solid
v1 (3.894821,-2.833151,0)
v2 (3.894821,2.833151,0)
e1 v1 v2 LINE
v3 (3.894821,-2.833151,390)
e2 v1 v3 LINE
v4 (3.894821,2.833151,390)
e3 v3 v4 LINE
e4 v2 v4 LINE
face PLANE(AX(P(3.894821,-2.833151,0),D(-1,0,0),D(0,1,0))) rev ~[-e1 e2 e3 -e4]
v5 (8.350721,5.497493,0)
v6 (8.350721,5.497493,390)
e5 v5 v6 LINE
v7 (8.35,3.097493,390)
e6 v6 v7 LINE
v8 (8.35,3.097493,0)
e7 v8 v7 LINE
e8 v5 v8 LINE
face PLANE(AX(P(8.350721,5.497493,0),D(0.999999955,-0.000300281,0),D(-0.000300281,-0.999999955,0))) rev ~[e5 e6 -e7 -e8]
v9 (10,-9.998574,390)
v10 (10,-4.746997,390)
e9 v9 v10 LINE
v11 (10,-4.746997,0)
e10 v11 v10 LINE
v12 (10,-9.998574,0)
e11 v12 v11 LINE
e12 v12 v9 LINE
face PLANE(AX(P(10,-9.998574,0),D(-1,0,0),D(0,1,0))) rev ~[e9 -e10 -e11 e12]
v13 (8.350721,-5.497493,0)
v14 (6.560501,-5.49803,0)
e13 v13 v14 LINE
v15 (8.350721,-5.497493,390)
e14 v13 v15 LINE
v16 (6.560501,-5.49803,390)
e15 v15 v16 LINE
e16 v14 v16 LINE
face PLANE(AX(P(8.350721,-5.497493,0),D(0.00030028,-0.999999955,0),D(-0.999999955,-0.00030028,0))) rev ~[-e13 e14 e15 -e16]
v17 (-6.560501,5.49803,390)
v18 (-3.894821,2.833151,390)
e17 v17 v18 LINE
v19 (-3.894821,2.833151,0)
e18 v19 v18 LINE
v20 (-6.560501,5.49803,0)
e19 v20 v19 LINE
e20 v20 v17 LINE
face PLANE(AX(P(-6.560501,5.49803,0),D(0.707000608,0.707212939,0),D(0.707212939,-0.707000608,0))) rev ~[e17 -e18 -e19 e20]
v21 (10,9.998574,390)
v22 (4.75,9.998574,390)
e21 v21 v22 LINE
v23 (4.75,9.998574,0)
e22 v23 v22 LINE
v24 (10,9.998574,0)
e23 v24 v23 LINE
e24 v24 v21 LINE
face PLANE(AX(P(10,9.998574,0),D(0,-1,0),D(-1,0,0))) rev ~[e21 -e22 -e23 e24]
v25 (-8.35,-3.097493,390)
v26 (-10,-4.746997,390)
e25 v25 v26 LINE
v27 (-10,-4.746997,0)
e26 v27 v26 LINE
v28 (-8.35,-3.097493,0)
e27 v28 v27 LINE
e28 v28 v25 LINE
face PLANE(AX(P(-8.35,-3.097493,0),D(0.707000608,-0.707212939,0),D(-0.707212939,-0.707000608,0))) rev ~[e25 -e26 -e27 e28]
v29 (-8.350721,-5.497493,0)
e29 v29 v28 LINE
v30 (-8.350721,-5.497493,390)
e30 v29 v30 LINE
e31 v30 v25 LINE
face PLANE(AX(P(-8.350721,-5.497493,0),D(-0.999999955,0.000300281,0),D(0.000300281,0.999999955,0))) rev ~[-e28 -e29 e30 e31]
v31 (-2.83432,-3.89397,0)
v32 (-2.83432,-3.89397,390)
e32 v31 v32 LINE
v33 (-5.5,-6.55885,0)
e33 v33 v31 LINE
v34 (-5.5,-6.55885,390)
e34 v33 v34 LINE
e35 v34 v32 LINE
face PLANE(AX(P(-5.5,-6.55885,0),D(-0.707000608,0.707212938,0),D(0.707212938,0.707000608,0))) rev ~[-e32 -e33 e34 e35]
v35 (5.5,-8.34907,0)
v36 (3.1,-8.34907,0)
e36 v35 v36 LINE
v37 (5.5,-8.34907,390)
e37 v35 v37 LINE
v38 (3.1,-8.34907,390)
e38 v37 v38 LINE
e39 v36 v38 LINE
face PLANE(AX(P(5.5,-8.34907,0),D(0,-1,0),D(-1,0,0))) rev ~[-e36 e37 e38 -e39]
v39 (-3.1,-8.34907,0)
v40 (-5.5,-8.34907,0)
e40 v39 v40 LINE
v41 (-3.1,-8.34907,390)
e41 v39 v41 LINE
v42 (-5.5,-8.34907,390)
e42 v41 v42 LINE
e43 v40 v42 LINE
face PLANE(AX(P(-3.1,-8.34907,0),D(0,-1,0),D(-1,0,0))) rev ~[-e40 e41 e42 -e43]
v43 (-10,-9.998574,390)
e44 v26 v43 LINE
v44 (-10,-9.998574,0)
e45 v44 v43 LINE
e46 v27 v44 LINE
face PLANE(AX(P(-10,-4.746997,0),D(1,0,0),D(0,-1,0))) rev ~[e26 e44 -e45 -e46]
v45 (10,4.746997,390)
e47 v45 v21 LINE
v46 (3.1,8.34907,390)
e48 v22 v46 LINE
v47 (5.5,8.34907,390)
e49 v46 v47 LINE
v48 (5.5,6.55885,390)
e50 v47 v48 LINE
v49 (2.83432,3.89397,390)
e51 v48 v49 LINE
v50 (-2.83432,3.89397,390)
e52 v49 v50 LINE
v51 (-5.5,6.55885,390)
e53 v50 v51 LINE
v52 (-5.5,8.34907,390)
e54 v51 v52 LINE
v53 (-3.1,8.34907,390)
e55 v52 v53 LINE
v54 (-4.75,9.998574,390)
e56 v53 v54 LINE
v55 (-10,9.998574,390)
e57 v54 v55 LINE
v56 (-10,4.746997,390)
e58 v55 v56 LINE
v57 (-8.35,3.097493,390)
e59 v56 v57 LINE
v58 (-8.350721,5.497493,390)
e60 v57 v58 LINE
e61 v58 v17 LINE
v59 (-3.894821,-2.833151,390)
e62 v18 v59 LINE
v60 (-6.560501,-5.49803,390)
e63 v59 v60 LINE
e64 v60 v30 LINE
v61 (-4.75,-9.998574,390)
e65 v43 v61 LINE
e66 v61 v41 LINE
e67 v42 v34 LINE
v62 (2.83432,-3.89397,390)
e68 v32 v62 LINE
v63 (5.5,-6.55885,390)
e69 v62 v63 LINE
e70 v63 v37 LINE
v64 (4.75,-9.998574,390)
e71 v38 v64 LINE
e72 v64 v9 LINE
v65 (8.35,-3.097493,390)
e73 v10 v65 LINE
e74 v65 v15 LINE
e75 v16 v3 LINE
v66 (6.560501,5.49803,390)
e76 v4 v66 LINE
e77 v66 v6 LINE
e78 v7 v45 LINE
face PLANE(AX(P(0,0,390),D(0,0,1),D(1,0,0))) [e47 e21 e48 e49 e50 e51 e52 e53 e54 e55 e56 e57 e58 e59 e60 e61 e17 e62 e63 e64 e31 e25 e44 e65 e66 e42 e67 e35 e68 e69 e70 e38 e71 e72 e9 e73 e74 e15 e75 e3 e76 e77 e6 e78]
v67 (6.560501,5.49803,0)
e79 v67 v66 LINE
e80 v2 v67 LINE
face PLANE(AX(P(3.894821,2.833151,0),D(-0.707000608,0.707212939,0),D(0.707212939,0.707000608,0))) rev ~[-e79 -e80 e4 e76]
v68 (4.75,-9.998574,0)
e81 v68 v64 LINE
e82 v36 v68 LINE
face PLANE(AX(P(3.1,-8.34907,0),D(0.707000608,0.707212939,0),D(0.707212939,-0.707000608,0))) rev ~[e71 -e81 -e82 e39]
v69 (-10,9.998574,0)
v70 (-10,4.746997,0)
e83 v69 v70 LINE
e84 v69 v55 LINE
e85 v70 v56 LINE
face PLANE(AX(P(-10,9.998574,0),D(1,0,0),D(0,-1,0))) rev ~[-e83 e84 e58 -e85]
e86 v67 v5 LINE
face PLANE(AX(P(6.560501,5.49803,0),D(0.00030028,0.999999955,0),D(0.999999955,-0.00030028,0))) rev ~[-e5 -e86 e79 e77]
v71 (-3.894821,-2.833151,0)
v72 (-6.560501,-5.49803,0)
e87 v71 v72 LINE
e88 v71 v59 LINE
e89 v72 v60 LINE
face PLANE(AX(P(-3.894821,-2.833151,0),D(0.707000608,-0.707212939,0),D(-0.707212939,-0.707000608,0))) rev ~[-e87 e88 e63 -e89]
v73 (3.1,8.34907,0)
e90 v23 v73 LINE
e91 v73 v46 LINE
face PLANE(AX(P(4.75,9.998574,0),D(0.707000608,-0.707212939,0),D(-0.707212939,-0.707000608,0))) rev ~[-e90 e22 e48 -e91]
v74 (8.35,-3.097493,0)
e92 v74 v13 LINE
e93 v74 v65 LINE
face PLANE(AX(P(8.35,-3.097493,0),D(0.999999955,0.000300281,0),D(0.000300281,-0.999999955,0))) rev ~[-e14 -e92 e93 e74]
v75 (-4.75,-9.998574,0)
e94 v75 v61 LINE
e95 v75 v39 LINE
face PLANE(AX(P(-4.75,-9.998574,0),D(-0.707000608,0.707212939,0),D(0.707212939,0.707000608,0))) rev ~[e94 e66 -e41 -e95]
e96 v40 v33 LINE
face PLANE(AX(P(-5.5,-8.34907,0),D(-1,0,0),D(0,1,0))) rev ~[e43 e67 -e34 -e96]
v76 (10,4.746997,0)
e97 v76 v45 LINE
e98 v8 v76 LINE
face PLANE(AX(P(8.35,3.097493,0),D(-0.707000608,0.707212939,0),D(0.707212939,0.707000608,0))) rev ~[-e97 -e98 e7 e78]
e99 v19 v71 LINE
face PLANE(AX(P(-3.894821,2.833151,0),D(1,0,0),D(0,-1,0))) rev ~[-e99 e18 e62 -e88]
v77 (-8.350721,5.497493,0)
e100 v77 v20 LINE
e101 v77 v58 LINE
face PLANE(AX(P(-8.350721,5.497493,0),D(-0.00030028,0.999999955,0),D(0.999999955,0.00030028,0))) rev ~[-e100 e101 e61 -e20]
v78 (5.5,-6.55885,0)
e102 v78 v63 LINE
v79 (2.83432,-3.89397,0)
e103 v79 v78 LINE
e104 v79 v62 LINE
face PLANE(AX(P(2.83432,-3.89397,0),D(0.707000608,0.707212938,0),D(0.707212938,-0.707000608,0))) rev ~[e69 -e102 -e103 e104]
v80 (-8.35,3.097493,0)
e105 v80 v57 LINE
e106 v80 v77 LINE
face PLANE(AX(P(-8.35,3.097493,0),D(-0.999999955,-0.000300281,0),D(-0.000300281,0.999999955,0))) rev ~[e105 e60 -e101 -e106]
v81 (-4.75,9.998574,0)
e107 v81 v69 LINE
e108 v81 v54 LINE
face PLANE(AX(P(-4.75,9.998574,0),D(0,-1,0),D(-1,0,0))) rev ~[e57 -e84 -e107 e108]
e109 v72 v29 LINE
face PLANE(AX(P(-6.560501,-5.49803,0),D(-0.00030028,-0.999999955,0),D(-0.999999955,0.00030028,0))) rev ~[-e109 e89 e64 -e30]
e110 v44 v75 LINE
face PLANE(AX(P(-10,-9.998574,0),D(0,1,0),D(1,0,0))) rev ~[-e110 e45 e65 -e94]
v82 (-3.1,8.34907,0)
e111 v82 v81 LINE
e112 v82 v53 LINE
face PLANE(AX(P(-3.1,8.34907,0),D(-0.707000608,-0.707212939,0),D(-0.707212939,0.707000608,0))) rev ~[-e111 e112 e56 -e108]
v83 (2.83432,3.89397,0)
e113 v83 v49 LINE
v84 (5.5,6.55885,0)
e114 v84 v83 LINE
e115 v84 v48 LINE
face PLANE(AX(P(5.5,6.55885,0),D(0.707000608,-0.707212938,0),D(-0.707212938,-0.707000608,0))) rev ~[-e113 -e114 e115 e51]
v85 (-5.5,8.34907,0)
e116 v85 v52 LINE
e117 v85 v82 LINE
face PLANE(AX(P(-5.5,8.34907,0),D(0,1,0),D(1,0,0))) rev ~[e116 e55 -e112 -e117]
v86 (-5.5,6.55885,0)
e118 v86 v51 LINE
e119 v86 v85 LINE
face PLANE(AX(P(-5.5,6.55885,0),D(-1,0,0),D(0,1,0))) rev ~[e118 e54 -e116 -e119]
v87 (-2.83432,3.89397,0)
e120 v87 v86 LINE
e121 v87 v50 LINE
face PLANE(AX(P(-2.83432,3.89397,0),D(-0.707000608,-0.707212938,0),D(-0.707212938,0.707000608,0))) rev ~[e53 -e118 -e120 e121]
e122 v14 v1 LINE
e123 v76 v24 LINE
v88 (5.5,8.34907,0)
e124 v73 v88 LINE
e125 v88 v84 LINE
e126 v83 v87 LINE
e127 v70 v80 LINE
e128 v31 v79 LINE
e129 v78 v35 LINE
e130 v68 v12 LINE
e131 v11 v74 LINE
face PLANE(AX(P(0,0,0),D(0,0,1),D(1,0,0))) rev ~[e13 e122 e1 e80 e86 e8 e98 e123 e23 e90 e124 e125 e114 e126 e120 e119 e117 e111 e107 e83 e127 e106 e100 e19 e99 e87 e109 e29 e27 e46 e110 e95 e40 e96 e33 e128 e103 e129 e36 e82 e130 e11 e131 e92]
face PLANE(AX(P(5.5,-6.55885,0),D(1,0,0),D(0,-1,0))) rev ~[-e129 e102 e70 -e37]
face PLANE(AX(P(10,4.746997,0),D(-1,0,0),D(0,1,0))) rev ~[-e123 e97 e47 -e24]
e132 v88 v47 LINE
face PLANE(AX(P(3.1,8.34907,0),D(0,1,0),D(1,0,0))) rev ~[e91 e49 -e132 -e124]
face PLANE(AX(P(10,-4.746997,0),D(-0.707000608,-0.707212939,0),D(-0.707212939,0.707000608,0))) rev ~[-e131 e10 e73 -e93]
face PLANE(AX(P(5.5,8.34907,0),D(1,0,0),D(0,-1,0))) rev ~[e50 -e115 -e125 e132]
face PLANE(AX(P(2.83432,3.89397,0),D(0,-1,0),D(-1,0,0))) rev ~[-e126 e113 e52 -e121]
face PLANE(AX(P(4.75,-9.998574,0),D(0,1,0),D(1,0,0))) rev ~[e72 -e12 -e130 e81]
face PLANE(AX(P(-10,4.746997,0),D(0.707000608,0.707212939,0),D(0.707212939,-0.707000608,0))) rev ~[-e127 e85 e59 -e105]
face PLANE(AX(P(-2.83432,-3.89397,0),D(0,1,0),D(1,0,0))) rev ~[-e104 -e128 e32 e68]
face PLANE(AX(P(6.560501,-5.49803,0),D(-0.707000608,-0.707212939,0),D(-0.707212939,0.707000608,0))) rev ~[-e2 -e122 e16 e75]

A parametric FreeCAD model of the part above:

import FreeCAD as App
import Part
import Sketcher
from FreeCAD import Vector
Q = App.Units.Quantity


def add_polygon(sketch, points):
    """Adds a closed chain of lines whose ends are joined by coincident constraints."""
    first, n = sketch.GeometryCount, len(points)
    for a, b in zip(points, points[1:] + points[:1]):
        sketch.addGeometry(Part.LineSegment(App.Vector(*a, 0), App.Vector(*b, 0)), False)
    for i in range(n):
        sketch.addConstraint(Sketcher.Constraint("Coincident", first + i, 2, first + (i + 1) % n, 1))

doc = App.newDocument("Part")
body = doc.addObject("PartDesign::Body", "Body")

sketch1 = doc.addObject("Sketcher::SketchObject", "Sketch")
body.addObject(sketch1)
sketch1.AttachmentSupport = (doc.XY_Plane, [""])
sketch1.MapMode = "FlatFace"
add_polygon(sketch1, [(2.8, 3.9), (-2.8, 3.9), (-5.5, 6.6), (-5.5, 8.3), (-3.1, 8.3), (-4.8, 10), (-10, 10), (-10, 4.7), (-8.3, 3.1), (-8.4, 5.5), (-6.6, 5.5), (-3.9, 2.8), (-3.9, -2.8), (-6.6, -5.5), (-8.4, -5.5), (-8.3, -3.1), (-10, -4.7), (-10, -10), (-4.8, -10), (-3.1, -8.3), (-5.5, -8.3), (-5.5, -6.6), (-2.8, -3.9), (2.8, -3.9), (5.5, -6.6), (5.5, -8.3), (3.1, -8.3), (4.8, -10), (10, -10), (10, -4.7), (8.3, -3.1), (8.4, -5.5), (6.6, -5.5), (3.9, -2.8), (3.9, 2.8), (6.6, 5.5), (8.4, 5.5), (8.3, 3.1), (10, 4.7), (10, 10), (4.8, 10), (3.1, 8.3), (5.5, 8.3), (5.5, 6.6)])
sketch1.addConstraint(Sketcher.Constraint("Horizontal", 0))
sketch1.addConstraint(Sketcher.Constraint("Vertical", 2))
sketch1.addConstraint(Sketcher.Constraint("Horizontal", 3))
sketch1.addConstraint(Sketcher.Constraint("Horizontal", 5))
sketch1.addConstraint(Sketcher.Constraint("Vertical", 6))
sketch1.addConstraint(Sketcher.Constraint("Vertical", 11))
sketch1.addConstraint(Sketcher.Constraint("Vertical", 16))
sketch1.addConstraint(Sketcher.Constraint("Horizontal", 17))
sketch1.addConstraint(Sketcher.Constraint("Horizontal", 19))
sketch1.addConstraint(Sketcher.Constraint("Vertical", 20))
sketch1.addConstraint(Sketcher.Constraint("Horizontal", 22))
sketch1.addConstraint(Sketcher.Constraint("Vertical", 24))
sketch1.addConstraint(Sketcher.Constraint("Horizontal", 25))
sketch1.addConstraint(Sketcher.Constraint("Horizontal", 27))
sketch1.addConstraint(Sketcher.Constraint("Vertical", 28))
sketch1.addConstraint(Sketcher.Constraint("Vertical", 33))
sketch1.addConstraint(Sketcher.Constraint("Vertical", 38))
sketch1.addConstraint(Sketcher.Constraint("Horizontal", 39))
sketch1.addConstraint(Sketcher.Constraint("Horizontal", 41))
sketch1.addConstraint(Sketcher.Constraint("Vertical", 42))
sketch1.addConstraint(Sketcher.Constraint("Symmetric", 0, 2, 22, 2, -1, 1))
sketch1.addConstraint(Sketcher.Constraint("Symmetric", 1, 2, 23, 2, -1, 1))
sketch1.addConstraint(Sketcher.Constraint("Symmetric", 3, 2, 25, 2, -1, 1))
sketch1.addConstraint(Sketcher.Constraint("Symmetric", 4, 2, 26, 2, -1, 1))
sketch1.addConstraint(Sketcher.Constraint("Symmetric", 6, 2, 28, 2, -1, 1))
sketch1.addConstraint(Sketcher.Constraint("Symmetric", 7, 2, 29, 2, -1, 1))
sketch1.addConstraint(Sketcher.Constraint("Symmetric", 8, 2, 30, 2, -1, 1))
sketch1.addConstraint(Sketcher.Constraint("Symmetric", 9, 2, 31, 2, -1, 1))
sketch1.addConstraint(Sketcher.Constraint("Symmetric", 10, 2, 32, 2, -1, 1))
sketch1.addConstraint(Sketcher.Constraint("Symmetric", 12, 2, 34, 2, -1, 1))
sketch1.addConstraint(Sketcher.Constraint("Symmetric", 13, 2, 35, 2, -1, 1))
sketch1.addConstraint(Sketcher.Constraint("Symmetric", 14, 2, 36, 2, -1, 1))
sketch1.addConstraint(Sketcher.Constraint("Symmetric", 15, 2, 37, 2, -1, 1))
sketch1.addConstraint(Sketcher.Constraint("Symmetric", 17, 2, 39, 2, -1, 1))
sketch1.addConstraint(Sketcher.Constraint("Symmetric", 18, 2, 40, 2, -1, 1))
sketch1.addConstraint(Sketcher.Constraint("Symmetric", 20, 2, 42, 2, -1, 1))
sketch1.addConstraint(Sketcher.Constraint("Symmetric", 20, 2, 23, 2, -2))
sketch1.addConstraint(Sketcher.Constraint("Symmetric", 18, 2, 25, 2, -2))
sketch1.addConstraint(Sketcher.Constraint("Symmetric", 17, 2, 26, 2, -2))
sketch1.addConstraint(Sketcher.Constraint("Symmetric", 15, 2, 28, 2, -2))
sketch1.addConstraint(Sketcher.Constraint("Symmetric", 14, 2, 29, 2, -2))
sketch1.addConstraint(Sketcher.Constraint("Symmetric", 13, 2, 30, 2, -2))
sketch1.addConstraint(Sketcher.Constraint("Symmetric", 12, 2, 31, 2, -2))
sketch1.addConstraint(Sketcher.Constraint("Parallel", 1, 4))
sketch1.addConstraint(Sketcher.Constraint("Parallel", 4, 7))
sketch1.addConstraint(Sketcher.Constraint("Perpendicular", 8, 9))
sketch1.addConstraint(Sketcher.Constraint("Parallel", 7, 10))
sketch1.addConstraint(Sketcher.Constraint("Parallel", 12, 15))
sketch1.addConstraint(Sketcher.Constraint("Parallel", 18, 21))
sketch1.addConstraint(Sketcher.Constraint("Parallel", 21, 34))
sketch1.addConstraint(Sketcher.Constraint("Parallel", 40, 43))
sketch1.addConstraint(Sketcher.Constraint("Equal", 4, 7))
sketch1.addConstraint(Sketcher.Constraint("Equal", 1, 10))
sketch1.addConstraint(Sketcher.Constraint("DistanceX", 3, 1, 3, 2, Q("2.4 mm")))
sketch1.addConstraint(Sketcher.Constraint("DistanceX", 5, 2, -1, 1, Q("10 mm")))
sketch1.addConstraint(Sketcher.Constraint("Distance", 8, Q("2.4 mm")))
sketch1.addConstraint(Sketcher.Constraint("DistanceX", 5, 2, 5, 1, Q("5.25 mm")))
sketch1.addConstraint(Sketcher.Constraint("DistanceX", 1, 2, -1, 1, Q("5.5 mm")))
sketch1.addConstraint(Sketcher.Constraint("DistanceY", 11, 2, 11, 1, Q("5.666302 mm")))
sketch1.addConstraint(Sketcher.Constraint("DistanceY", 12, 2, 0, 2, Q("9.392001 mm")))
sketch1.addConstraint(Sketcher.Constraint("DistanceX", 0, 2, 0, 1, Q("5.668641 mm")))
sketch1.addConstraint(Sketcher.Constraint("DistanceY", 2, 1, 2, 2, Q("1.79022 mm")))
sketch1.addConstraint(Sketcher.Constraint("DistanceX", 9, 2, -1, 1, Q("6.560501 mm")))
sketch1.addConstraint(Sketcher.Constraint("DistanceY", 0, 2, 2, 2, Q("4.455099 mm")))
sketch1.addConstraint(Sketcher.Constraint("DistanceX", 8, 2, 10, 2, Q("4.455899 mm")))
pad1 = doc.addObject("PartDesign::Pad", "Pad")
body.addObject(pad1)
pad1.Profile = sketch1
pad1.Length = 390

doc.recompute()
